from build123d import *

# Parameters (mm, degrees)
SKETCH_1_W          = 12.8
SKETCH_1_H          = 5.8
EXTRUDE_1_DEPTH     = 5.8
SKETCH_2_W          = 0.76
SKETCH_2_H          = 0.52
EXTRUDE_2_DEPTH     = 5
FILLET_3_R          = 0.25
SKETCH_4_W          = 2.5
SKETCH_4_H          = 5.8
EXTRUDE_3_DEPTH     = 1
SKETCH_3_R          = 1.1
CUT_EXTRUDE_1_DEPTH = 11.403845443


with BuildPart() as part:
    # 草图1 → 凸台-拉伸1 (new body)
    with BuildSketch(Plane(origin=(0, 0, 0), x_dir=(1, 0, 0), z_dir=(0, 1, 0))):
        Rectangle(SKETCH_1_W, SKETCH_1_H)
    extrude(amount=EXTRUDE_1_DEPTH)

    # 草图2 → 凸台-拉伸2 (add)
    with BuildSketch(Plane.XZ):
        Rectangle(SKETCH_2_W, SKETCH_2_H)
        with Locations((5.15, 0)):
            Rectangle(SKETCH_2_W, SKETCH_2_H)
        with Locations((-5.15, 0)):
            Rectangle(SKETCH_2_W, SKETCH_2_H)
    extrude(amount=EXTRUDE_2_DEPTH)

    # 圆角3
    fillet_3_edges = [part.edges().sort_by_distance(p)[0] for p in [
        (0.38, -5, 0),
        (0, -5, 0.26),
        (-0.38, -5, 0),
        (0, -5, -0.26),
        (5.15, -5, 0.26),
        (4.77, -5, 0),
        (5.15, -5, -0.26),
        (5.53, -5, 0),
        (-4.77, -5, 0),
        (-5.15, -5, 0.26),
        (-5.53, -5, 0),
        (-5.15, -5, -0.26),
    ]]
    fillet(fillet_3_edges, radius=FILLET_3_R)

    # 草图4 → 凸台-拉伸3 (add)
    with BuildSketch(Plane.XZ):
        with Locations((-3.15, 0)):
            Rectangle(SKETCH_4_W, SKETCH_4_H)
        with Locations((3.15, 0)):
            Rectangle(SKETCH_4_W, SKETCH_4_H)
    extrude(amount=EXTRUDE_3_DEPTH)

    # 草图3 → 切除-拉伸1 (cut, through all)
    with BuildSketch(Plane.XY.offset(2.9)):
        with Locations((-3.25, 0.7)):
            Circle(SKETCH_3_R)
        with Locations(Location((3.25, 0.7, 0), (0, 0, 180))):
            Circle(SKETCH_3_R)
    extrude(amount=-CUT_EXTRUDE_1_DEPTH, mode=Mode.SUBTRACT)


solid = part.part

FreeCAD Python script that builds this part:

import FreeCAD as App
import Part
import Sketcher
Q = App.Units.Quantity


def edges_at(feature, points):
    """Names of the edges that pass closest to the given points."""
    edges = feature.Shape.Edges
    near = lambda p: min(range(len(edges)), key=lambda i: edges[i].distToShape(Part.Vertex(*p))[0])
    return sorted({f"Edge{near(p) + 1}" for p in points})


def add_polygon(sketch, points):
    """Adds a closed chain of lines whose ends are joined by coincident constraints."""
    first, n = sketch.GeometryCount, len(points)
    for a, b in zip(points, points[1:] + points[:1]):
        sketch.addGeometry(Part.LineSegment(App.Vector(*a, 0), App.Vector(*b, 0)), False)
    for i in range(n):
        sketch.addConstraint(Sketcher.Constraint("Coincident", first + i, 2, first + (i + 1) % n, 1))

doc = App.newDocument("Part")
body = doc.addObject("PartDesign::Body", "Body")

sketch1 = body.newObject("Sketcher::SketchObject", "Sketch")
sketch1.AttachmentSupport = (doc.getObject("XZ_Plane"), [""])
sketch1.MapMode = "FlatFace"
add_polygon(sketch1, [(-6.4, -2.9), (-6.4, 2.9), (6.4, 2.9), (6.4, -2.9)])
sketch1.addConstraint(Sketcher.Constraint("Vertical", 0))
sketch1.addConstraint(Sketcher.Constraint("Horizontal", 1))
sketch1.addConstraint(Sketcher.Constraint("Vertical", 2))
sketch1.addConstraint(Sketcher.Constraint("Horizontal", 3))
sketch1.addConstraint(Sketcher.Constraint("Symmetric", 0, 2, 2, 2, -1, 1))
sketch1.addConstraint(Sketcher.Constraint("DistanceX", 1, 1, 1, 2, Q("12.8 mm")))
sketch1.addConstraint(Sketcher.Constraint("DistanceY", 0, 1, 0, 2, Q("5.8 mm")))
pad1 = body.newObject("PartDesign::Pad", "Pad")
pad1.Profile = sketch1
pad1.Length = 5.8
pad1.Reversed = True

sketch2 = body.newObject("Sketcher::SketchObject", "Sketch001")
sketch2.AttachmentSupport = (doc.getObject("XZ_Plane"), [""])
sketch2.MapMode = "FlatFace"
add_polygon(sketch2, [(-0.38, 0.26), (-0.38, -0.26), (0.38, -0.26), (0.38, 0.26)])
add_polygon(sketch2, [(4.77, 0.26), (4.77, -0.26), (5.53, -0.26), (5.53, 0.26)])
add_polygon(sketch2, [(-5.53, 0.26), (-5.53, -0.26), (-4.77, -0.26), (-4.77, 0.26)])
sketch2.addConstraint(Sketcher.Constraint("Vertical", 0))
sketch2.addConstraint(Sketcher.Constraint("Horizontal", 1))
sketch2.addConstraint(Sketcher.Constraint("Vertical", 2))
sketch2.addConstraint(Sketcher.Constraint("Horizontal", 3))
sketch2.addConstraint(Sketcher.Constraint("Vertical", 4))
sketch2.addConstraint(Sketcher.Constraint("Horizontal", 5))
sketch2.addConstraint(Sketcher.Constraint("Vertical", 6))
sketch2.addConstraint(Sketcher.Constraint("Horizontal", 7))
sketch2.addConstraint(Sketcher.Constraint("Vertical", 8))
sketch2.addConstraint(Sketcher.Constraint("Horizontal", 9))
sketch2.addConstraint(Sketcher.Constraint("Vertical", 10))
sketch2.addConstraint(Sketcher.Constraint("Horizontal", 11))
sketch2.addConstraint(Sketcher.Constraint("Symmetric", 0, 2, 2, 2, -1, 1))
sketch2.addConstraint(Sketcher.Constraint("Symmetric", 6, 2, 8, 2, -1, 1))
sketch2.addConstraint(Sketcher.Constraint("Symmetric", 4, 2, 10, 2, -1, 1))
sketch2.addConstraint(Sketcher.Constraint("Horizontal", 1, 2, 4, 2))
sketch2.addConstraint(Sketcher.Constraint("Horizontal", 3, 2, 6, 2))
sketch2.addConstraint(Sketcher.Constraint("Equal", 3, 5))
sketch2.addConstraint(Sketcher.Constraint("DistanceX", 1, 1, 1, 2, Q("0.76 mm")))
sketch2.addConstraint(Sketcher.Constraint("DistanceY", 0, 2, 0, 1, Q("0.52 mm")))
sketch2.addConstraint(Sketcher.Constraint("DistanceX", 8, 2, 4, 2, Q("10.3 mm")))
pad2 = body.newObject("PartDesign::Pad", "Pad001")
pad2.Profile = sketch2
pad2.Length = 5
doc.recompute()

fillet = body.newObject("PartDesign::Fillet", "Fillet")
fillet.Base = (pad2, edges_at(pad2, [
    (0.38, -5, 0),
    (0, -5, 0.26),
    (-0.38, -5, 0),
    (0, -5, -0.26),
    (5.15, -5, 0.26),
    (4.77, -5, 0),
    (5.15, -5, -0.26),
    (5.53, -5, 0),
    (-4.77, -5, 0),
    (-5.15, -5, 0.26),
    (-5.53, -5, 0),
    (-5.15, -5, -0.26),
]))
fillet.Radius = 0.25

sketch3 = body.newObject("Sketcher::SketchObject", "Sketch002")
sketch3.AttachmentSupport = (doc.getObject("XZ_Plane"), [""])
sketch3.MapMode = "FlatFace"
add_polygon(sketch3, [(-4.4, 2.9), (-4.4, -2.9), (-1.9, -2.9), (-1.9, 2.9)])
add_polygon(sketch3, [(1.9, 2.9), (1.9, -2.9), (4.4, -2.9), (4.4, 2.9)])
sketch3.addConstraint(Sketcher.Constraint("Vertical", 0))
sketch3.addConstraint(Sketcher.Constraint("Horizontal", 1))
sketch3.addConstraint(Sketcher.Constraint("Vertical", 2))
sketch3.addConstraint(Sketcher.Constraint("Horizontal", 3))
sketch3.addConstraint(Sketcher.Constraint("Vertical", 4))
sketch3.addConstraint(Sketcher.Constraint("Horizontal", 5))
sketch3.addConstraint(Sketcher.Constraint("Vertical", 6))
sketch3.addConstraint(Sketcher.Constraint("Horizontal", 7))
sketch3.addConstraint(Sketcher.Constraint("Symmetric", 2, 2, 4, 2, -1, 1))
sketch3.addConstraint(Sketcher.Constraint("Symmetric", 0, 2, 6, 2, -1, 1))
sketch3.addConstraint(Sketcher.Constraint("Horizontal", 1, 2, 4, 2))
sketch3.addConstraint(Sketcher.Constraint("DistanceX", 1, 1, 1, 2, Q("2.5 mm")))
sketch3.addConstraint(Sketcher.Constraint("DistanceY", 0, 2, 0, 1, Q("5.8 mm")))
sketch3.addConstraint(Sketcher.Constraint("DistanceX", 0, 2, -1, 1, Q("4.4 mm")))
pad3 = body.newObject("PartDesign::Pad", "Pad002")
pad3.Profile = sketch3
pad3.Length = 1

sketch4 = body.newObject("Sketcher::SketchObject", "Sketch003")
sketch4.AttachmentSupport = (doc.getObject("XY_Plane"), [""])
sketch4.MapMode = "FlatFace"
sketch4.AttachmentOffset = App.Placement(App.Vector(0, 0, 2.9), App.Rotation())
sketch4.addGeometry(Part.Circle(App.Vector(-3.25, 0.7, 0), App.Vector(0, 0, 1), 1.1), False)
sketch4.addGeometry(Part.Circle(App.Vector(3.25, 0.7, 0), App.Vector(0, 0, 1), 1.1), False)
sketch4.addConstraint(Sketcher.Constraint("Equal", 0, 1))
sketch4.addConstraint(Sketcher.Constraint("Symmetric", 0, 3, 1, 3, -2))
sketch4.addConstraint(Sketcher.Constraint("Diameter", 0, Q("2.2 mm")))
sketch4.addConstraint(Sketcher.Constraint("DistanceY", -1, 1, 0, 3, Q("0.7 mm")))
sketch4.addConstraint(Sketcher.Constraint("DistanceX", 0, 3, 1, 3, Q("6.5 mm")))
pocket1 = body.newObject("PartDesign::Pocket", "Pocket")
pocket1.Profile = sketch4
pocket1.Type = "ThroughAll"

doc.recompute()
